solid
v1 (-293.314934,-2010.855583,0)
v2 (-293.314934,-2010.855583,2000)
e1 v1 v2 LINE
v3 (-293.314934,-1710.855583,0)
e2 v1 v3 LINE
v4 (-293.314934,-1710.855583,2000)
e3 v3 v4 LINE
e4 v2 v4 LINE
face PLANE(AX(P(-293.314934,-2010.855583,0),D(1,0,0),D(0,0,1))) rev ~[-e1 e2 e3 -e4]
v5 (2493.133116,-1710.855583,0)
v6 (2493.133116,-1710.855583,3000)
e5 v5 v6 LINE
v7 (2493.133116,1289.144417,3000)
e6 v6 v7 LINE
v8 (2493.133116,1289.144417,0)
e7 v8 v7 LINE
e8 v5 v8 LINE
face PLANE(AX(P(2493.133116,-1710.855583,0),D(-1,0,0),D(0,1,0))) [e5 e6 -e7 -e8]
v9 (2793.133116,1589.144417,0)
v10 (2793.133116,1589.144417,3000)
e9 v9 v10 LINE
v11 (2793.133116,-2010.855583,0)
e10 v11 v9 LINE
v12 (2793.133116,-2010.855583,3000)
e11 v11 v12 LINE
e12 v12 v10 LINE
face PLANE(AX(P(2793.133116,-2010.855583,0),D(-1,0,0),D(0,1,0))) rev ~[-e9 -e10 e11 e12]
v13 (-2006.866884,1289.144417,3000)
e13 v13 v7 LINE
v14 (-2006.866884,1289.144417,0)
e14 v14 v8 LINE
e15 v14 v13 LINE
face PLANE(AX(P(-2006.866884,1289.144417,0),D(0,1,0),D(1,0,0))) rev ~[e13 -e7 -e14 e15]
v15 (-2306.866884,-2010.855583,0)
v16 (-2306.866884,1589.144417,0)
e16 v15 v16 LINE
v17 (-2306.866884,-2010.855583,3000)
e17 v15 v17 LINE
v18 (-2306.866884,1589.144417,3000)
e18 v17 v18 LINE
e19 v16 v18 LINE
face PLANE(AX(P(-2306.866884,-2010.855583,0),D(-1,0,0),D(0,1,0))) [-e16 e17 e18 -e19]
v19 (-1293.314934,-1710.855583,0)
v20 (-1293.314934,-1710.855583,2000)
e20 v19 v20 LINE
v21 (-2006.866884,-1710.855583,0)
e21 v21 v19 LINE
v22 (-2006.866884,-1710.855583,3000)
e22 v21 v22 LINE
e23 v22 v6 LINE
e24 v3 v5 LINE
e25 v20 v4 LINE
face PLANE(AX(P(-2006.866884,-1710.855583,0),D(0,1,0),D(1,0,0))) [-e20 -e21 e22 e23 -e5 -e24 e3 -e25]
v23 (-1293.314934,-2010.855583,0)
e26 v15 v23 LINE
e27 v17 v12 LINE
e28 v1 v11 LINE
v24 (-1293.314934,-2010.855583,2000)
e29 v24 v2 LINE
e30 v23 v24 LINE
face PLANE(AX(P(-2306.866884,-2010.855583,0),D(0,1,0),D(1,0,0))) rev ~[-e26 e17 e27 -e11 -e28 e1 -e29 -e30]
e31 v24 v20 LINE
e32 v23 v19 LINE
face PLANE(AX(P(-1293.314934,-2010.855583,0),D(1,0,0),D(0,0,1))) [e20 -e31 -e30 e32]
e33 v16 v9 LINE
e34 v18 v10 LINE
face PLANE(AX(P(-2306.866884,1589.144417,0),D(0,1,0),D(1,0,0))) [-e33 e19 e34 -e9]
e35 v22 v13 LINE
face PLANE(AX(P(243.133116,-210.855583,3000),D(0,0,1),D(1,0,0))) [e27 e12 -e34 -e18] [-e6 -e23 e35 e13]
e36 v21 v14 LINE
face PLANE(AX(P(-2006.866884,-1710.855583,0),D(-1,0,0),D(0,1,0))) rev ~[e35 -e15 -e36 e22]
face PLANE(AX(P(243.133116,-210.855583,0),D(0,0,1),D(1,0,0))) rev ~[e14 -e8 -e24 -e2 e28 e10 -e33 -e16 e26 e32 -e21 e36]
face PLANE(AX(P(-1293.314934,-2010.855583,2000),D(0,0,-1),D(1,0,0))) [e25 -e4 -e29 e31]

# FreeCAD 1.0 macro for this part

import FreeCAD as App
import Part
import Sketcher

V = App.Vector


def add_polygon(sketch, points):
    """Adds a closed chain of lines whose ends are joined by coincident constraints."""
    first, n = sketch.GeometryCount, len(points)
    for a, b in zip(points, points[1:] + points[:1]):
        sketch.addGeometry(Part.LineSegment(App.Vector(*a, 0), App.Vector(*b, 0)), False)
    for i in range(n):
        sketch.addConstraint(Sketcher.Constraint("Coincident", first + i, 2, first + (i + 1) % n, 1))

doc = App.newDocument("Part")
params = doc.addObject("Spreadsheet::Sheet", "Params")
for row, (alias, value) in enumerate([
    ("sketch1_width", "5100 mm"),
    ("sketch1_width2", "4500 mm"),
    ("sketch1_height", "3600 mm"),
    ("sketch1_height2", "3000 mm"),
    ("pad1_length", "3000 mm"),
    ("sketch2_width", "1000 mm"),
    ("sketch2_height", "2000 mm"),
    ("pocket1_length", "300 mm"),
], start=1):
    params.set(f"A{row}", alias)
    params.set(f"B{row}", "=" + value)
    params.setAlias(f"B{row}", alias)

body = doc.addObject("PartDesign::Body", "Body")

# Sketch on XY plane
sketch1 = body.newObject("Sketcher::SketchObject", "Sketch")
sketch1.AttachmentSupport = (doc.getObject("XY_Plane"), [""])
sketch1.MapMode = "FlatFace"
add_polygon(sketch1, [(-2307, 1589), (-2307, -2011), (2793, -2011), (2793, 1589)])  # lines 0-3
add_polygon(sketch1, [(2493, -1711), (-2007, -1711), (-2007, 1289), (2493, 1289)])  # lines 4-7
sketch1.addConstraint([
    Sketcher.Constraint("Vertical", 0),
    Sketcher.Constraint("Horizontal", 1),
    Sketcher.Constraint("Vertical", 2),
    Sketcher.Constraint("Horizontal", 3),
    Sketcher.Constraint("Horizontal", 4),
    Sketcher.Constraint("Vertical", 5),
    Sketcher.Constraint("Horizontal", 6),
    Sketcher.Constraint("Vertical", 7),
    Sketcher.Constraint("DistanceX", 1, 1, 1, 2, 5100.0),
    Sketcher.Constraint("DistanceX", 4, 2, 4, 1, 4500.0),
    Sketcher.Constraint("DistanceY", 0, 2, 0, 1, 3600.0),
    Sketcher.Constraint("DistanceY", 5, 1, 5, 2, 3000.0),
    Sketcher.Constraint("DistanceX", 0, 2, 4, 2, 300.0),
    Sketcher.Constraint("DistanceY", 0, 2, 4, 2, 300.0),
    Sketcher.Constraint("DistanceX", 0, 2, -1, 1, 2306.866884),
    Sketcher.Constraint("DistanceY", 0, 2, -1, 1, 2010.855583),
])
sketch1.setExpression("Constraints[16]", "Params.sketch1_width")
sketch1.setExpression("Constraints[17]", "Params.sketch1_width2")
sketch1.setExpression("Constraints[18]", "Params.sketch1_height")
sketch1.setExpression("Constraints[19]", "Params.sketch1_height2")
pad1 = body.newObject("PartDesign::Pad", "Pad")
pad1.Profile = sketch1
pad1.setExpression("Length", "Params.pad1_length")

# Sketch on XZ plane
sketch2 = body.newObject("Sketcher::SketchObject", "Sketch001")
sketch2.AttachmentSupport = (doc.getObject("XZ_Plane"), [""])
sketch2.MapMode = "FlatFace"
sketch2.AttachmentOffset = App.Placement(V(0, 0, 2010.855583), App.Rotation())
add_polygon(sketch2, [(-1293, 2000), (-1293, 0), (-293, 0), (-293, 2000)])  # lines 0-3
sketch2.addConstraint([
    Sketcher.Constraint("Vertical", 0),
    Sketcher.Constraint("Horizontal", 1),
    Sketcher.Constraint("Vertical", 2),
    Sketcher.Constraint("Horizontal", 3),
    Sketcher.Constraint("PointOnObject", 0, 2, -1),
    Sketcher.Constraint("DistanceX", 1, 1, 1, 2, 1000.0),
    Sketcher.Constraint("DistanceY", 0, 2, 0, 1, 2000.0),
    Sketcher.Constraint("DistanceX", 0, 2, -1, 1, 1293.314934),
])
sketch2.setExpression("Constraints[9]", "Params.sketch2_width")
sketch2.setExpression("Constraints[10]", "Params.sketch2_height")
pocket1 = body.newObject("PartDesign::Pocket", "Pocket")
pocket1.Profile = sketch2
pocket1.setExpression("Length", "Params.pocket1_length")

doc.recompute()
